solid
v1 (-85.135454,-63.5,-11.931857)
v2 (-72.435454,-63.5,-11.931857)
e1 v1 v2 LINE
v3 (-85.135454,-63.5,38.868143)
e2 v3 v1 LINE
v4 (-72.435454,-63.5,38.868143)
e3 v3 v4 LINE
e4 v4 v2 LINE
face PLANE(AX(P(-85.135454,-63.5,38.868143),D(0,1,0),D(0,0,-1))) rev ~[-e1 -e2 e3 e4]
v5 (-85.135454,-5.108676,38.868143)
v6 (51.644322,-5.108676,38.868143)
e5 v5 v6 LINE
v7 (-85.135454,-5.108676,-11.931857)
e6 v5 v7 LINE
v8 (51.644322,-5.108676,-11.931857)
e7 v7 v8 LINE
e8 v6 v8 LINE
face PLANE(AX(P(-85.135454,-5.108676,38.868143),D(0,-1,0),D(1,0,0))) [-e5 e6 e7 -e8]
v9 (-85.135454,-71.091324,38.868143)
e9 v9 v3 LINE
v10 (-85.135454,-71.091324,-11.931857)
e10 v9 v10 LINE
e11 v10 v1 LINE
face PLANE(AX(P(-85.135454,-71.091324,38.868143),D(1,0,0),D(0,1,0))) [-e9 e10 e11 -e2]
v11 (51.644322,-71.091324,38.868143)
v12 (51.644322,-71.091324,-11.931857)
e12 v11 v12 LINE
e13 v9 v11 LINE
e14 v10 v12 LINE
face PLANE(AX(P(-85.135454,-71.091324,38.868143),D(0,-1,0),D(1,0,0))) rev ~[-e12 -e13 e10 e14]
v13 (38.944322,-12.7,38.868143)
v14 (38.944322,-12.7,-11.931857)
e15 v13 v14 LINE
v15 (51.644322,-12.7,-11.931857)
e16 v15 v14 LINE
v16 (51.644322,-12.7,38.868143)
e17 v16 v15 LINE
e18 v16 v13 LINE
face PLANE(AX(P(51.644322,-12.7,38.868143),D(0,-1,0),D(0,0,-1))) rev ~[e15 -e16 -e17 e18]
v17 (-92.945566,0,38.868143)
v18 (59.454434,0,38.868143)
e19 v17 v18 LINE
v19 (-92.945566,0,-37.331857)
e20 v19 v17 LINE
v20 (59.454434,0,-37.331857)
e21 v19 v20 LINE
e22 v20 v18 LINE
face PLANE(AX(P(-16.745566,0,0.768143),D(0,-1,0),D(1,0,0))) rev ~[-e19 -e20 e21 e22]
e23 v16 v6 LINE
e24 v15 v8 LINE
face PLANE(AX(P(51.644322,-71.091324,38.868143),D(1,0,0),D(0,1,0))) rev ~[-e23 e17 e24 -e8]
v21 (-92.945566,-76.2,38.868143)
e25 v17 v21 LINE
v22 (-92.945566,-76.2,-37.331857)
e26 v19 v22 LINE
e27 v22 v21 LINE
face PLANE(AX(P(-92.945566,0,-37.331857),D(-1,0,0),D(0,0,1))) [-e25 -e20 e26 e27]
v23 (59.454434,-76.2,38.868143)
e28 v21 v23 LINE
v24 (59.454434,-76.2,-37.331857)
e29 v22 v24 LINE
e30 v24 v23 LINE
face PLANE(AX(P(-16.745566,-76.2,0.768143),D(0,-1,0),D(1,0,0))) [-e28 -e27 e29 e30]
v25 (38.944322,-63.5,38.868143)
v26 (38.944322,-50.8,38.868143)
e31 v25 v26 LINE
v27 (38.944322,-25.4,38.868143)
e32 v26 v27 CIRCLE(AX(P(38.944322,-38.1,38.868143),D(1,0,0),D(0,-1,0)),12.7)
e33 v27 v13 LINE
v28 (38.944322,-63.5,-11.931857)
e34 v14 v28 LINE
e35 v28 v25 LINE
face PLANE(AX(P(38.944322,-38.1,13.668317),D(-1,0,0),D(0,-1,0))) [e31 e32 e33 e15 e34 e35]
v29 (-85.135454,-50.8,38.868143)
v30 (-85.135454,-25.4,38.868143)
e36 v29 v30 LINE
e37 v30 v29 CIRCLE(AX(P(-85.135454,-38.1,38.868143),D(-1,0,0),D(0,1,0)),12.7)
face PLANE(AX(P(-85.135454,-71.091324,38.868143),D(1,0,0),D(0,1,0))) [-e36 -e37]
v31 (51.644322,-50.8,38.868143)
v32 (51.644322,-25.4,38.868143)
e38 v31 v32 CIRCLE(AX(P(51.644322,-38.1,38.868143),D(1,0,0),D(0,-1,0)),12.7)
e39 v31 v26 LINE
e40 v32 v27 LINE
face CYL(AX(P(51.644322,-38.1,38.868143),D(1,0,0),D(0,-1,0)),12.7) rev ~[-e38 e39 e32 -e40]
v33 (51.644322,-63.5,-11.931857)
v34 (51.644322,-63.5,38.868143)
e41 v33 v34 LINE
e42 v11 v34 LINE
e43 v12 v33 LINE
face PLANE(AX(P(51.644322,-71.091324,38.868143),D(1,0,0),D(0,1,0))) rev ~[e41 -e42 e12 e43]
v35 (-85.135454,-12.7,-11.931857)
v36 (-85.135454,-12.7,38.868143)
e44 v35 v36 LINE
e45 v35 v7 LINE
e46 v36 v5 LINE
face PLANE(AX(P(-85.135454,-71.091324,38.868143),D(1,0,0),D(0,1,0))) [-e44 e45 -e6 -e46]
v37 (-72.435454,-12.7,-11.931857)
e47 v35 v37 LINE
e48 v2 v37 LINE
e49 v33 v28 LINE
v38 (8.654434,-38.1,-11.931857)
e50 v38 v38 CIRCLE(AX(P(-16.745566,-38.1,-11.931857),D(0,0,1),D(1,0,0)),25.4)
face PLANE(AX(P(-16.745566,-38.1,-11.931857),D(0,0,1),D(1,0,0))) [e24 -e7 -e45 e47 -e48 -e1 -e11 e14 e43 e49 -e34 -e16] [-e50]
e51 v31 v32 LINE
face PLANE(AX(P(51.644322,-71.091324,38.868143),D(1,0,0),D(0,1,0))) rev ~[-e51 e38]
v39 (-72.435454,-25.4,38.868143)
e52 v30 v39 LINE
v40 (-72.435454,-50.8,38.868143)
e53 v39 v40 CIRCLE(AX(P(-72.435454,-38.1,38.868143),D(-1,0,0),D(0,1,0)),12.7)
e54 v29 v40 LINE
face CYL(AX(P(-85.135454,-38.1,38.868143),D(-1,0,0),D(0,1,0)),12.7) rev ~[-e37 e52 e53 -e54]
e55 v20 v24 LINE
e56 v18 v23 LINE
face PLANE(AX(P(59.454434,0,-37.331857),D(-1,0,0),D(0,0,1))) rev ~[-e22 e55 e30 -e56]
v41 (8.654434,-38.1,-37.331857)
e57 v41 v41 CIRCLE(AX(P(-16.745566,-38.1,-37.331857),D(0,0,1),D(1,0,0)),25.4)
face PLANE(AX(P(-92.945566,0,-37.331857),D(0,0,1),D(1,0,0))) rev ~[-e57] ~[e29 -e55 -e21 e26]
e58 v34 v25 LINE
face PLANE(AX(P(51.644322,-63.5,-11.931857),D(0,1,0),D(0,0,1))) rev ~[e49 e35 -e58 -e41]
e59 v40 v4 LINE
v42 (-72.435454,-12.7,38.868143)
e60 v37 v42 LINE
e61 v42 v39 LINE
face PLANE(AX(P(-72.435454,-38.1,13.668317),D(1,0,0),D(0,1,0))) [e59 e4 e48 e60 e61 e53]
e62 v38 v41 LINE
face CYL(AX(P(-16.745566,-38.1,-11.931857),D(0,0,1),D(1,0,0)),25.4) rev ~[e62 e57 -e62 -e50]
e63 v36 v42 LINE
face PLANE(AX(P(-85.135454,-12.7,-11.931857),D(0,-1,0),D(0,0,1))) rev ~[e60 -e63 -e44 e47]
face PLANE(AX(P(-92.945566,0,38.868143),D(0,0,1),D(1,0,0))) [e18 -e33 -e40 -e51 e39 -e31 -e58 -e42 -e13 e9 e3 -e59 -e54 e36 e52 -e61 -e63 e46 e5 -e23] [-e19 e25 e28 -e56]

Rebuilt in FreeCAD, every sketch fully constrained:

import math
import FreeCAD as App
import Part
import Sketcher
Q = App.Units.Quantity


def add_polygon(sketch, points):
    """Adds a closed chain of lines whose ends are joined by coincident constraints."""
    first, n = sketch.GeometryCount, len(points)
    for a, b in zip(points, points[1:] + points[:1]):
        sketch.addGeometry(Part.LineSegment(App.Vector(*a, 0), App.Vector(*b, 0)), False)
    for i in range(n):
        sketch.addConstraint(Sketcher.Constraint("Coincident", first + i, 2, first + (i + 1) % n, 1))

doc = App.newDocument("Part")
body = doc.addObject("PartDesign::Body", "Body")

sketch1 = body.newObject("Sketcher::SketchObject", "Sketch")
sketch1.AttachmentSupport = (doc.getObject("XZ_Plane"), [""])
sketch1.MapMode = "FlatFace"
add_polygon(sketch1, [(-92.945566, 38.868143), (-92.945566, -37.331857), (59.454434, -37.331857), (59.454434, 38.868143)])
sketch1.addConstraint([
    Sketcher.Constraint("Vertical", 0),
    Sketcher.Constraint("Horizontal", 1),
    Sketcher.Constraint("Vertical", 2),
    Sketcher.Constraint("Horizontal", 3),
    Sketcher.Constraint("DistanceX", 1, 1, 1, 2, Q("6 in")),
    Sketcher.Constraint("DistanceY", 0, 2, 0, 1, Q("3 in")),
    Sketcher.Constraint("DistanceX", 0, 2, -1, 1, Q("92.945566 mm")),
    Sketcher.Constraint("DistanceY", 0, 2, -1, 1, Q("37.331857 mm")),
])
pad1 = body.newObject("PartDesign::Pad", "Pad")
pad1.Profile = sketch1
pad1.Length = Q("3 in")

sketch2 = body.newObject("Sketcher::SketchObject", "Sketch001")
sketch2.AttachmentSupport = (doc.getObject("XY_Plane"), [""])
sketch2.MapMode = "FlatFace"
sketch2.AttachmentOffset = App.Placement(App.Vector(0, 0, 38.868143), App.Rotation())
add_polygon(sketch2, [(-85.135454, -5.108676), (-85.135454, -71.091324), (51.644322, -71.091324), (51.644322, -5.108676)])
sketch2.addConstraint([
    Sketcher.Constraint("Vertical", 0),
    Sketcher.Constraint("Horizontal", 1),
    Sketcher.Constraint("Vertical", 2),
    Sketcher.Constraint("Horizontal", 3),
    Sketcher.Constraint("DistanceX", 1, 1, 1, 2, Q("136.779776 mm")),
    Sketcher.Constraint("DistanceY", 0, 2, 0, 1, Q("65.982648 mm")),
    Sketcher.Constraint("DistanceX", 0, 2, -1, 1, Q("85.135454 mm")),
    Sketcher.Constraint("DistanceY", 0, 2, -1, 1, Q("71.091324 mm")),
])
pocket1 = body.newObject("PartDesign::Pocket", "Pocket")
pocket1.Profile = sketch2
pocket1.Length = Q("2 in")

sketch3 = body.newObject("Sketcher::SketchObject", "Sketch002")
sketch3.AttachmentSupport = (doc.getObject("YZ_Plane"), [""])
sketch3.MapMode = "FlatFace"
sketch3.AttachmentOffset = App.Placement(App.Vector(0, 0, -85.135454), App.Rotation())
sketch3.addGeometry([
    Part.ArcOfCircle(Part.Circle(App.Vector(-38.1, 38.868143, 0), App.Vector(0, 0, 1), 12.7), math.radians(180), math.radians(360)),
    Part.LineSegment(App.Vector(-50.8, 38.868143, 0), App.Vector(-63.5, 38.868143, 0)),
    Part.LineSegment(App.Vector(-63.5, 38.868143, 0), App.Vector(-63.5, -11.931857, 0)),
    Part.LineSegment(App.Vector(-63.5, -11.931857, 0), App.Vector(-12.7, -11.931857, 0)),
    Part.LineSegment(App.Vector(-12.7, -11.931857, 0), App.Vector(-12.7, 38.868143, 0)),
    Part.LineSegment(App.Vector(-12.7, 38.868143, 0), App.Vector(-25.4, 38.868143, 0)),
], False)
sketch3.addConstraint([
    Sketcher.Constraint("Coincident", 0, 1, 1, 1),
    Sketcher.Constraint("Coincident", 1, 2, 2, 1),
    Sketcher.Constraint("Coincident", 2, 2, 3, 1),
    Sketcher.Constraint("Coincident", 3, 2, 4, 1),
    Sketcher.Constraint("Coincident", 4, 2, 5, 1),
    Sketcher.Constraint("Coincident", 5, 2, 0, 2),
    Sketcher.Constraint("Horizontal", 1),
    Sketcher.Constraint("Vertical", 2),
    Sketcher.Constraint("Horizontal", 3),
    Sketcher.Constraint("Vertical", 4),
    Sketcher.Constraint("Horizontal", 5),
    Sketcher.Constraint("Horizontal", 1, 2, 4, 2),
    Sketcher.Constraint("Equal", 1, 5),
    Sketcher.Constraint("Equal", 3, 2),
    Sketcher.Constraint("Radius", 0, Q("0.5 in")),
    Sketcher.Constraint("DistanceX", 3, 1, 3, 2, Q("2 in")),
    Sketcher.Constraint("DistanceX", 0, 1, -1, 1, Q("2 in")),
    Sketcher.Constraint("DistanceY", 2, 2, 0, 3, Q("2 in")),
    Sketcher.Constraint("DistanceY", -1, 1, 0, 3, Q("38.868143 mm")),
])
pad2 = body.newObject("PartDesign::Pad", "Pad001")
pad2.Profile = sketch3
pad2.Length = Q("0.5 in")

sketch4 = body.newObject("Sketcher::SketchObject", "Sketch003")
sketch4.AttachmentSupport = (doc.getObject("YZ_Plane"), [""])
sketch4.MapMode = "FlatFace"
sketch4.AttachmentOffset = App.Placement(App.Vector(0, 0, 51.644322), App.Rotation())
sketch4.addGeometry([
    Part.ArcOfCircle(Part.Circle(App.Vector(-38.1, 38.868143, 0), App.Vector(0, 0, 1), 12.7), math.radians(180), math.radians(360)),
    Part.LineSegment(App.Vector(-25.4, 38.868143, 0), App.Vector(-12.7, 38.868143, 0)),
    Part.LineSegment(App.Vector(-12.7, 38.868143, 0), App.Vector(-12.7, -11.931857, 0)),
    Part.LineSegment(App.Vector(-12.7, -11.931857, 0), App.Vector(-63.5, -11.931857, 0)),
    Part.LineSegment(App.Vector(-63.5, -11.931857, 0), App.Vector(-63.5, 38.868143, 0)),
    Part.LineSegment(App.Vector(-63.5, 38.868143, 0), App.Vector(-50.8, 38.868143, 0)),
], False)
sketch4.addConstraint([
    Sketcher.Constraint("Coincident", 0, 2, 1, 1),
    Sketcher.Constraint("Coincident", 1, 2, 2, 1),
    Sketcher.Constraint("Coincident", 2, 2, 3, 1),
    Sketcher.Constraint("Coincident", 3, 2, 4, 1),
    Sketcher.Constraint("Coincident", 4, 2, 5, 1),
    Sketcher.Constraint("Coincident", 5, 2, 0, 1),
    Sketcher.Constraint("Horizontal", 1),
    Sketcher.Constraint("Vertical", 2),
    Sketcher.Constraint("Horizontal", 3),
    Sketcher.Constraint("Vertical", 4),
    Sketcher.Constraint("Horizontal", 5),
    Sketcher.Constraint("Horizontal", 1, 2, 4, 2),
    Sketcher.Constraint("Equal", 1, 5),
    Sketcher.Constraint("Equal", 3, 2),
    Sketcher.Constraint("Radius", 0, Q("0.5 in")),
    Sketcher.Constraint("DistanceX", 3, 2, 3, 1, Q("2 in")),
    Sketcher.Constraint("DistanceX", 0, 2, -1, 1, Q("1 in")),
    Sketcher.Constraint("DistanceY", 2, 2, 0, 3, Q("2 in")),
    Sketcher.Constraint("DistanceY", -1, 1, 0, 3, Q("38.868143 mm")),
])
pad3 = body.newObject("PartDesign::Pad", "Pad002")
pad3.Profile = sketch4
pad3.Length = Q("0.5 in")
pad3.Reversed = True

sketch5 = body.newObject("Sketcher::SketchObject", "Sketch004")
sketch5.AttachmentSupport = (doc.getObject("XY_Plane"), [""])
sketch5.MapMode = "FlatFace"
sketch5.AttachmentOffset = App.Placement(App.Vector(0, 0, -11.931857), App.Rotation())
sketch5.addGeometry(Part.Circle(App.Vector(-16.745566, -38.1, 0), App.Vector(0, 0, 1), 25.4), False)
sketch5.addConstraint([
    Sketcher.Constraint("Diameter", 0, Q("2 in")),
    Sketcher.Constraint("DistanceY", 0, 3, -1, 1, Q("1.5 in")),
    Sketcher.Constraint("DistanceX", 0, 3, -1, 1, Q("16.745566 mm")),
])
pocket2 = body.newObject("PartDesign::Pocket", "Pocket001")
pocket2.Profile = sketch5
pocket2.Length = Q("2.6 in")

doc.recompute()
